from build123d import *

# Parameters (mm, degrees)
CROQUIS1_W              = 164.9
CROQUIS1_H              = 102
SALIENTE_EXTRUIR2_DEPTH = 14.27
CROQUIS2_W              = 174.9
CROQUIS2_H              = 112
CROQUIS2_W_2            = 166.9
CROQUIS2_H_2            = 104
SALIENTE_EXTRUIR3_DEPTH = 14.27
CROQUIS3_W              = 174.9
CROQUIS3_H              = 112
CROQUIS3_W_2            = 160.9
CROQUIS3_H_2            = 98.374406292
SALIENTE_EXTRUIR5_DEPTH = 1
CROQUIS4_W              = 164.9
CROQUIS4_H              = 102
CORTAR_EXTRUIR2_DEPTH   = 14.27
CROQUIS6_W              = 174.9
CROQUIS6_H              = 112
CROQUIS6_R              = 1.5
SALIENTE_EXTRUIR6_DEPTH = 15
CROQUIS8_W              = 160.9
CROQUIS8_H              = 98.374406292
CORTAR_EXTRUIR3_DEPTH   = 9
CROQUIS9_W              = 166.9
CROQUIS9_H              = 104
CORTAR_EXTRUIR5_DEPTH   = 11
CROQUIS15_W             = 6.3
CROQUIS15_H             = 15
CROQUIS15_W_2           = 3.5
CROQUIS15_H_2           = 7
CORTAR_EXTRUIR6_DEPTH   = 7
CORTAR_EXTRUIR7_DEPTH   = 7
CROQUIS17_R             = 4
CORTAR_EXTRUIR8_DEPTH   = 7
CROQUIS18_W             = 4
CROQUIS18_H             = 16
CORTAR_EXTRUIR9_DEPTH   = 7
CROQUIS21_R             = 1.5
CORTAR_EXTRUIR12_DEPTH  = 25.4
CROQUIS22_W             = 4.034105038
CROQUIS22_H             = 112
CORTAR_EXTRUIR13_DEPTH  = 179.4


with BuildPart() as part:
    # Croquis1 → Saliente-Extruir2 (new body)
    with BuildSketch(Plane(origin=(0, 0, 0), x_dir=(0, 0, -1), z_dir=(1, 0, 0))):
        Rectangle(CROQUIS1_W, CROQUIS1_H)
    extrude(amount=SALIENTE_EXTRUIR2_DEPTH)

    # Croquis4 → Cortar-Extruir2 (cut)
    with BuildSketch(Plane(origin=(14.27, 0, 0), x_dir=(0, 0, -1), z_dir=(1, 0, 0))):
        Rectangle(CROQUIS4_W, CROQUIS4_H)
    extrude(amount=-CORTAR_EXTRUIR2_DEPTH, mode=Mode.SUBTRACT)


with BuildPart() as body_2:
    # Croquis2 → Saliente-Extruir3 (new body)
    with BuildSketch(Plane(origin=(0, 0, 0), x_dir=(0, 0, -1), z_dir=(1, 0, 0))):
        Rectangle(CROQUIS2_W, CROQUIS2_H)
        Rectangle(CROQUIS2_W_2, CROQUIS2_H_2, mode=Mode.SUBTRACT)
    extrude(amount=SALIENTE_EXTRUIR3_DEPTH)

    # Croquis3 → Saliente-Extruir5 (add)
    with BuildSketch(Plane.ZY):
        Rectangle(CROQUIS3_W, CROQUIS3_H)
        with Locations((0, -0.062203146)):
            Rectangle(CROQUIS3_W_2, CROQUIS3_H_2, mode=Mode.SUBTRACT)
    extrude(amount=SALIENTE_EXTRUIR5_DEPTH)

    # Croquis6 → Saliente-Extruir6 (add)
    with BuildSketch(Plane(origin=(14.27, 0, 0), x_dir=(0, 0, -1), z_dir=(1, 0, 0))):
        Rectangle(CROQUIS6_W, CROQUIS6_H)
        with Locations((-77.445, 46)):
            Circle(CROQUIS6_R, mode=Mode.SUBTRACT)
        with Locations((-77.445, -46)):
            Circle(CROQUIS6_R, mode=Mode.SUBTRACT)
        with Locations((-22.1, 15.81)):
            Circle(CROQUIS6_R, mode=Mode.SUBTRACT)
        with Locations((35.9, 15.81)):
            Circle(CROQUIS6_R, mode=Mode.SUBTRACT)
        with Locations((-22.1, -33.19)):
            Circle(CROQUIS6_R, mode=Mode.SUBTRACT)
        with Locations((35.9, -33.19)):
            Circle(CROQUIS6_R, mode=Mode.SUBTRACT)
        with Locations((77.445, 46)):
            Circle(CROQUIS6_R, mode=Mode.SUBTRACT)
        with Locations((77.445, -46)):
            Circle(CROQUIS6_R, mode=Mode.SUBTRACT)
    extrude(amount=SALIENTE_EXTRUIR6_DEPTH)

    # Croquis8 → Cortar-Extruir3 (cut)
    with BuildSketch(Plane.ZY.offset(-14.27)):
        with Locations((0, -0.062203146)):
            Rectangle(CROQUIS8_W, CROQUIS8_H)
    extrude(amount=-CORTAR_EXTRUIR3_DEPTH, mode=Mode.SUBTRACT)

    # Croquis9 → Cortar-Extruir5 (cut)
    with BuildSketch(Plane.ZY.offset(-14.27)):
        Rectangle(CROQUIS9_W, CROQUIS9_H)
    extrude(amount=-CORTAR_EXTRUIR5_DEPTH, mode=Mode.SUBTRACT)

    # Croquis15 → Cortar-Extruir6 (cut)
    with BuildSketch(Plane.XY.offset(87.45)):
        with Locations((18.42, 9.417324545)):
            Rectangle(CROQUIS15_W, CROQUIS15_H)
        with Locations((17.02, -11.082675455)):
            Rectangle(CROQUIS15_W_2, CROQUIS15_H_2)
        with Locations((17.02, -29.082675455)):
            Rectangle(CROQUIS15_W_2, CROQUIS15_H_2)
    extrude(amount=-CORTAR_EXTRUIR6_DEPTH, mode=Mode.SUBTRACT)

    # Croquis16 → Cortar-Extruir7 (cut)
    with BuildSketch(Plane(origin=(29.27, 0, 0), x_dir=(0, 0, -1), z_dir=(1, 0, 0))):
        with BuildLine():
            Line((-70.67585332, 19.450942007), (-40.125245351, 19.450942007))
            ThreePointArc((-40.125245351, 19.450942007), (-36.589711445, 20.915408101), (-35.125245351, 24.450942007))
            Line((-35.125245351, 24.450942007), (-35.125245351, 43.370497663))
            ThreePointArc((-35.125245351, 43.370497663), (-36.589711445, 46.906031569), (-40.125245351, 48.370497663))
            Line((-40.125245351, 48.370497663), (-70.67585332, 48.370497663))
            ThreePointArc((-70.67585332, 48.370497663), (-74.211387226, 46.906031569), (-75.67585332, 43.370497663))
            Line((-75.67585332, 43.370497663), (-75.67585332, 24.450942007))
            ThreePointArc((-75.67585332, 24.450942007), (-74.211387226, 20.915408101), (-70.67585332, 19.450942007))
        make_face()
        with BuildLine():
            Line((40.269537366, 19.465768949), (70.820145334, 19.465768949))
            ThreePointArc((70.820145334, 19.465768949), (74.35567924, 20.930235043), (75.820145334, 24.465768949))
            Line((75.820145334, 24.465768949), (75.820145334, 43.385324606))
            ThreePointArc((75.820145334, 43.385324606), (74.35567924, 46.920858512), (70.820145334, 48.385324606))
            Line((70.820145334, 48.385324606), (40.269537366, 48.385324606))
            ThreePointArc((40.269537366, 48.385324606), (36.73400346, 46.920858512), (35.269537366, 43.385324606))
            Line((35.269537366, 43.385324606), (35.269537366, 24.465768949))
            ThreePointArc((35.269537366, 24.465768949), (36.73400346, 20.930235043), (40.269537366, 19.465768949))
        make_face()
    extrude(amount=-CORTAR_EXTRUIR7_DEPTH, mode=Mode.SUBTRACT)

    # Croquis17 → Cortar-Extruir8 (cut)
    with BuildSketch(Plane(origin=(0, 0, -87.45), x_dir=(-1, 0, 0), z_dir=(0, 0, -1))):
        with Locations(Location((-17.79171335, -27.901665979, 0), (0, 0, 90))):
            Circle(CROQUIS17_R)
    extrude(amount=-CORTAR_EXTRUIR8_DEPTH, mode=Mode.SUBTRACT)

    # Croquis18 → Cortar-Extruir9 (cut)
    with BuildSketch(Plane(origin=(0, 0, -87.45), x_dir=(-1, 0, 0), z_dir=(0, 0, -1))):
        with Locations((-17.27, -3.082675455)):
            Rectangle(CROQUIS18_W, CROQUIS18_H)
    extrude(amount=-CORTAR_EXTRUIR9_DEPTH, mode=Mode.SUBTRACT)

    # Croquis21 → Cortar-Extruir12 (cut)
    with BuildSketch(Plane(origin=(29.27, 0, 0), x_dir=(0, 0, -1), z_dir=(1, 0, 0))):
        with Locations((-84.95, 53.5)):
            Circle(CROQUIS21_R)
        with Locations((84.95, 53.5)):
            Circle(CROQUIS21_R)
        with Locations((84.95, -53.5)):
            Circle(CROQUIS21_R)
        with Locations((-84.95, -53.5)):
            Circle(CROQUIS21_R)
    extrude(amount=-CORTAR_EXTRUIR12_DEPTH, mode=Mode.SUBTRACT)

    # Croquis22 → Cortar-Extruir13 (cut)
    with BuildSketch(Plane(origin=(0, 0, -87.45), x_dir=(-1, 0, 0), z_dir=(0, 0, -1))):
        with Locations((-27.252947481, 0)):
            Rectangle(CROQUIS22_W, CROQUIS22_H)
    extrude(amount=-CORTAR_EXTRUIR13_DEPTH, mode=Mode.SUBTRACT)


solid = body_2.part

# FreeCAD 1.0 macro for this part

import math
import FreeCAD as App
import Part
import Sketcher


def add_polygon(sketch, points):
    """Adds a closed chain of lines whose ends are joined by coincident constraints."""
    first, n = sketch.GeometryCount, len(points)
    for a, b in zip(points, points[1:] + points[:1]):
        sketch.addGeometry(Part.LineSegment(App.Vector(*a, 0), App.Vector(*b, 0)), False)
    for i in range(n):
        sketch.addConstraint(Sketcher.Constraint("Coincident", first + i, 2, first + (i + 1) % n, 1))

doc = App.newDocument("Part")
body = doc.addObject("PartDesign::Body", "Body")

# Sketch on YZ plane
sketch1 = body.newObject("Sketcher::SketchObject", "Sketch")
sketch1.AttachmentSupport = (doc.getObject("YZ_Plane"), [""])
sketch1.MapMode = "FlatFace"
add_polygon(sketch1, [(51, 82), (-51, 82), (-51, -82), (51, -82)])  # lines 0-3
sketch1.addConstraint([
    Sketcher.Constraint("Horizontal", 0),
    Sketcher.Constraint("Vertical", 1),
    Sketcher.Constraint("Horizontal", 2),
    Sketcher.Constraint("Vertical", 3),
    Sketcher.Constraint("Symmetric", 0, 2, 2, 2, -1, 1),
    Sketcher.Constraint("DistanceX", 0, 2, 0, 1, 102.0),
    Sketcher.Constraint("DistanceY", 1, 2, 1, 1, 164.9),
])
pad1 = body.newObject("PartDesign::Pad", "Pad")
pad1.Profile = sketch1
pad1.Length = 14.27

# Sketch on YZ plane
sketch2 = body.newObject("Sketcher::SketchObject", "Sketch001")
sketch2.AttachmentSupport = (doc.getObject("YZ_Plane"), [""])
sketch2.MapMode = "FlatFace"
sketch2.AttachmentOffset = App.Placement(App.Vector(0, 0, 14.27), App.Rotation())
add_polygon(sketch2, [(51, 82), (-51, 82), (-51, -82), (51, -82)])  # lines 0-3
sketch2.addConstraint([
    Sketcher.Constraint("Horizontal", 0),
    Sketcher.Constraint("Vertical", 1),
    Sketcher.Constraint("Horizontal", 2),
    Sketcher.Constraint("Vertical", 3),
    Sketcher.Constraint("Symmetric", 0, 2, 2, 2, -1, 1),
    Sketcher.Constraint("DistanceX", 0, 2, 0, 1, 102.0),
    Sketcher.Constraint("DistanceY", 1, 2, 1, 1, 164.9),
])
pocket1 = body.newObject("PartDesign::Pocket", "Pocket")
pocket1.Profile = sketch2
pocket1.Length = 14.27
body2 = doc.addObject("PartDesign::Body", "Body001")

# Sketch on YZ plane
sketch3 = body2.newObject("Sketcher::SketchObject", "Sketch002")
sketch3.AttachmentSupport = (doc.getObject("YZ_Plane001"), [""])
sketch3.MapMode = "FlatFace"
add_polygon(sketch3, [(56, 87), (-56, 87), (-56, -87), (56, -87)])  # lines 0-3
add_polygon(sketch3, [(-52, -83), (-52, 83), (52, 83), (52, -83)])  # lines 4-7
sketch3.addConstraint([
    Sketcher.Constraint("Horizontal", 0),
    Sketcher.Constraint("Vertical", 1),
    Sketcher.Constraint("Horizontal", 2),
    Sketcher.Constraint("Vertical", 3),
    Sketcher.Constraint("Vertical", 4),
    Sketcher.Constraint("Horizontal", 5),
    Sketcher.Constraint("Vertical", 6),
    Sketcher.Constraint("Horizontal", 7),
    Sketcher.Constraint("Symmetric", 0, 2, 2, 2, -1, 1),
    Sketcher.Constraint("Symmetric", 4, 2, 6, 2, -1, 1),
    Sketcher.Constraint("DistanceX", 0, 2, 0, 1, 112.0),
    Sketcher.Constraint("DistanceX", 5, 1, 5, 2, 104.0),
    Sketcher.Constraint("DistanceY", 1, 2, 1, 1, 174.9),
    Sketcher.Constraint("DistanceY", 4, 1, 4, 2, 166.9),
])
pad2 = body2.newObject("PartDesign::Pad", "Pad001")
pad2.Profile = sketch3
pad2.Length = 14.27

# Sketch on YZ plane
sketch4 = body2.newObject("Sketcher::SketchObject", "Sketch003")
sketch4.AttachmentSupport = (doc.getObject("YZ_Plane001"), [""])
sketch4.MapMode = "FlatFace"
add_polygon(sketch4, [(56, -87), (-56, -87), (-56, 87), (56, 87)])  # lines 0-3
add_polygon(sketch4, [(-49, 80), (-49, -80), (49, -80), (49, 80)])  # lines 4-7
sketch4.addConstraint([
    Sketcher.Constraint("Horizontal", 0),
    Sketcher.Constraint("Vertical", 1),
    Sketcher.Constraint("Horizontal", 2),
    Sketcher.Constraint("Vertical", 3),
    Sketcher.Constraint("Vertical", 4),
    Sketcher.Constraint("Horizontal", 5),
    Sketcher.Constraint("Vertical", 6),
    Sketcher.Constraint("Horizontal", 7),
    Sketcher.Constraint("Symmetric", 0, 2, 2, 2, -1, 1),
    Sketcher.Constraint("DistanceX", 0, 2, 0, 1, 112.0),
    Sketcher.Constraint("DistanceY", 1, 1, 1, 2, 174.9),
    Sketcher.Constraint("DistanceY", 4, 2, 4, 1, 160.9),
    Sketcher.Constraint("DistanceY", 0, 2, 4, 2, 7.0),
    Sketcher.Constraint("DistanceX", -1, 1, 5, 2, 49.125),
    Sketcher.Constraint("DistanceX", 5, 1, 5, 2, 98.374406),
])
pad3 = body2.newObject("PartDesign::Pad", "Pad002")
pad3.Profile = sketch4
pad3.Length = 1
pad3.Reversed = True

# Sketch on YZ plane
sketch5 = body2.newObject("Sketcher::SketchObject", "Sketch004")
sketch5.AttachmentSupport = (doc.getObject("YZ_Plane001"), [""])
sketch5.MapMode = "FlatFace"
sketch5.AttachmentOffset = App.Placement(App.Vector(0, 0, 14.27), App.Rotation())
add_polygon(sketch5, [(56, 87.5), (-56, 87.5), (-56, -87.5), (56, -87.5)])  # lines 0-3
sketch5.addGeometry(Part.Circle(App.Vector(-46, 77.4, 0), App.Vector(0, 0, 1), 1.5), False)  # 4
sketch5.addGeometry(Part.Circle(App.Vector(-33.2, 22.1, 0), App.Vector(0, 0, 1), 1.5), False)  # 5
sketch5.addGeometry(Part.Circle(App.Vector(-33.2, -35.9, 0), App.Vector(0, 0, 1), 1.5), False)  # 6
sketch5.addGeometry(Part.Circle(App.Vector(-46, -77.4, 0), App.Vector(0, 0, 1), 1.5), False)  # 7
sketch5.addGeometry(Part.Circle(App.Vector(15.8, 22.1, 0), App.Vector(0, 0, 1), 1.5), False)  # 8
sketch5.addGeometry(Part.Circle(App.Vector(46, 77.4, 0), App.Vector(0, 0, 1), 1.5), False)  # 9
sketch5.addGeometry(Part.Circle(App.Vector(15.8, -35.9, 0), App.Vector(0, 0, 1), 1.5), False)  # 10
sketch5.addGeometry(Part.Circle(App.Vector(46, -77.4, 0), App.Vector(0, 0, 1), 1.5), False)  # 11
sketch5.addConstraint([
    Sketcher.Constraint("Horizontal", 0),
    Sketcher.Constraint("Vertical", 1),
    Sketcher.Constraint("Horizontal", 2),
    Sketcher.Constraint("Vertical", 3),
    Sketcher.Constraint("Equal", 4, 5),
    Sketcher.Constraint("Equal", 5, 6),
    Sketcher.Constraint("Equal", 6, 7),
    Sketcher.Constraint("Equal", 7, 8),
    Sketcher.Constraint("Equal", 8, 9),
    Sketcher.Constraint("Equal", 9, 10),
    Sketcher.Constraint("Equal", 10, 11),
    Sketcher.Constraint("Symmetric", 7, 3, 9, 3, -1, 1),
    Sketcher.Constraint("Symmetric", 4, 3, 11, 3, -1, 1),
    Sketcher.Constraint("Symmetric", 0, 2, 2, 2, -1, 1),
    Sketcher.Constraint("Symmetric", 4, 3, 9, 3, -2),
    Sketcher.Constraint("Horizontal", 5, 3, 8, 3),
    Sketcher.Constraint("Horizontal", 6, 3, 10, 3),
    Sketcher.Constraint("Vertical", 5, 3, 6, 3),
    Sketcher.Constraint("Vertical", 8, 3, 10, 3),
    Sketcher.Constraint("Diameter", 4, 3.0),
    Sketcher.Constraint("DistanceX", 0, 2, 0, 1, 112.0),
    Sketcher.Constraint("DistanceY", 1, 2, 1, 1, 174.9),
    Sketcher.Constraint("DistanceX", 4, 3, -1, 1, 46.0),
    Sketcher.Constraint("DistanceY", 6, 3, 5, 3, 58.0),
    Sketcher.Constraint("DistanceX", 5, 3, 8, 3, 49.0),
    Sketcher.Constraint("DistanceY", -1, 1, 5, 3, 22.1),
    Sketcher.Constraint("DistanceX", 5, 3, -1, 1, 33.19),
    Sketcher.Constraint("DistanceY", 7, 3, 4, 3, 154.89),
])
pad4 = body2.newObject("PartDesign::Pad", "Pad003")
pad4.Profile = sketch5
pad4.Length = 15

# Sketch on YZ plane
sketch6 = body2.newObject("Sketcher::SketchObject", "Sketch005")
sketch6.AttachmentSupport = (doc.getObject("YZ_Plane001"), [""])
sketch6.MapMode = "FlatFace"
sketch6.AttachmentOffset = App.Placement(App.Vector(0, 0, 14.27), App.Rotation())
add_polygon(sketch6, [(49, -80), (-49, -80), (-49, 80), (49, 80)])  # lines 0-3
sketch6.addConstraint([
    Sketcher.Constraint("Horizontal", 0),
    Sketcher.Constraint("Vertical", 1),
    Sketcher.Constraint("Horizontal", 2),
    Sketcher.Constraint("Vertical", 3),
    Sketcher.Constraint("DistanceY", 1, 1, 1, 2, 160.9),
    Sketcher.Constraint("DistanceY", 0, 2, -1, 1, 80.45),
    Sketcher.Constraint("DistanceX", -1, 1, 2, 2, 49.125),
    Sketcher.Constraint("DistanceX", 0, 2, 0, 1, 98.374406),
])
pocket2 = body2.newObject("PartDesign::Pocket", "Pocket001")
pocket2.Profile = sketch6
pocket2.Length = 9
pocket2.Reversed = True

# Sketch on YZ plane
sketch7 = body2.newObject("Sketcher::SketchObject", "Sketch006")
sketch7.AttachmentSupport = (doc.getObject("YZ_Plane001"), [""])
sketch7.MapMode = "FlatFace"
sketch7.AttachmentOffset = App.Placement(App.Vector(0, 0, 14.27), App.Rotation())
add_polygon(sketch7, [(52, -83), (-52, -83), (-52, 83), (52, 83)])  # lines 0-3
sketch7.addConstraint([
    Sketcher.Constraint("Horizontal", 0),
    Sketcher.Constraint("Vertical", 1),
    Sketcher.Constraint("Horizontal", 2),
    Sketcher.Constraint("Vertical", 3),
    Sketcher.Constraint("Symmetric", 0, 2, 2, 2, -1, 1),
    Sketcher.Constraint("DistanceX", 0, 2, 0, 1, 104.0),
    Sketcher.Constraint("DistanceY", 1, 1, 1, 2, 166.9),
])
pocket3 = body2.newObject("PartDesign::Pocket", "Pocket002")
pocket3.Profile = sketch7
pocket3.Length = 11
pocket3.Reversed = True

# Sketch on XY plane
sketch8 = body2.newObject("Sketcher::SketchObject", "Sketch007")
sketch8.AttachmentSupport = (doc.getObject("XY_Plane001"), [""])
sketch8.MapMode = "FlatFace"
sketch8.AttachmentOffset = App.Placement(App.Vector(0, 0, 87.45), App.Rotation())
add_polygon(sketch8, [(15.3, 16.9), (15.3, 1.9), (21.6, 1.9), (21.6, 16.9)])  # lines 0-3
add_polygon(sketch8, [(15.3, -7.6), (15.3, -14.6), (18.8, -14.6), (18.8, -7.6)])  # lines 4-7
add_polygon(sketch8, [(15.3, -25.6), (15.3, -32.6), (18.8, -32.6), (18.8, -25.6)])  # lines 8-11
sketch8.addConstraint([
    Sketcher.Constraint("Vertical", 0),
    Sketcher.Constraint("Horizontal", 1),
    Sketcher.Constraint("Vertical", 2),
    Sketcher.Constraint("Horizontal", 3),
    Sketcher.Constraint("Vertical", 4),
    Sketcher.Constraint("Horizontal", 5),
    Sketcher.Constraint("Vertical", 6),
    Sketcher.Constraint("Horizontal", 7),
    Sketcher.Constraint("Vertical", 8),
    Sketcher.Constraint("Horizontal", 9),
    Sketcher.Constraint("Vertical", 10),
    Sketcher.Constraint("Horizontal", 11),
    Sketcher.Constraint("Vertical", 3, 2, 4, 2),
    Sketcher.Constraint("Vertical", 7, 2, 8, 2),
    Sketcher.Constraint("Vertical", 6, 2, 9, 2),
    Sketcher.Constraint("Equal", 6, 8),
    Sketcher.Constraint("DistanceY", 0, 2, 0, 1, 15.0),
    Sketcher.Constraint("DistanceY", 4, 2, 4, 1, 7.0),
    Sketcher.Constraint("DistanceX", 1, 1, 1, 2, 6.3),
    Sketcher.Constraint("DistanceX", 5, 1, 5, 2, 3.5),
    Sketcher.Constraint("DistanceY", 8, 2, 4, 2, 18.0),
    Sketcher.Constraint("DistanceY", 4, 2, 0, 2, 16.5),
    Sketcher.Constraint("DistanceX", -1, 1, 0, 2, 15.27),
    Sketcher.Constraint("DistanceY", -1, 1, 0, 2, 1.917325),
])
pocket4 = body2.newObject("PartDesign::Pocket", "Pocket003")
pocket4.Profile = sketch8
pocket4.Length = 7

# Sketch on YZ plane
sketch9 = body2.newObject("Sketcher::SketchObject", "Sketch008")
sketch9.AttachmentSupport = (doc.getObject("YZ_Plane001"), [""])
sketch9.MapMode = "FlatFace"
sketch9.AttachmentOffset = App.Placement(App.Vector(0, 0, 29.27), App.Rotation())
sketch9.addGeometry([
    Part.LineSegment(App.Vector(19, 71, 0), App.Vector(19, 40, 0)),  # 0
    Part.ArcOfCircle(Part.Circle(App.Vector(24, 40, 0), App.Vector(0, 0, 1), 5), math.radians(180), math.radians(270)),  # 1
    Part.LineSegment(App.Vector(24, 35, 0), App.Vector(43, 35, 0)),  # 2
    Part.ArcOfCircle(Part.Circle(App.Vector(43, 40, 0), App.Vector(0, 0, 1), 5), math.radians(-90), math.radians(0)),  # 3
    Part.LineSegment(App.Vector(48, 40, 0), App.Vector(48, 71, 0)),  # 4
    Part.ArcOfCircle(Part.Circle(App.Vector(43, 71, 0), App.Vector(0, 0, 1), 5), math.radians(0), math.radians(90)),  # 5
    Part.LineSegment(App.Vector(43, 76, 0), App.Vector(24, 76, 0)),  # 6
    Part.ArcOfCircle(Part.Circle(App.Vector(24, 71, 0), App.Vector(0, 0, 1), 5), math.radians(90), math.radians(180)),  # 7
    Part.LineSegment(App.Vector(19, -40, 0), App.Vector(19, -71, 0)),  # 8
    Part.ArcOfCircle(Part.Circle(App.Vector(24, -71, 0), App.Vector(0, 0, 1), 5), math.radians(180), math.radians(270)),  # 9
    Part.LineSegment(App.Vector(24, -76, 0), App.Vector(43, -76, 0)),  # 10
    Part.ArcOfCircle(Part.Circle(App.Vector(43, -71, 0), App.Vector(0, 0, 1), 5), math.radians(-90), math.radians(0)),  # 11
    Part.LineSegment(App.Vector(48, -71, 0), App.Vector(48, -40, 0)),  # 12
    Part.ArcOfCircle(Part.Circle(App.Vector(43, -40, 0), App.Vector(0, 0, 1), 5), math.radians(0), math.radians(90)),  # 13
    Part.LineSegment(App.Vector(43, -35, 0), App.Vector(24, -35, 0)),  # 14
    Part.ArcOfCircle(Part.Circle(App.Vector(24, -40, 0), App.Vector(0, 0, 1), 5), math.radians(90), math.radians(180)),  # 15
], False)
sketch9.addConstraint([
    Sketcher.Constraint("Tangent", 0, 2, 1, 1),
    Sketcher.Constraint("Tangent", 1, 2, 2, 1),
    Sketcher.Constraint("Tangent", 2, 2, 3, 1),
    Sketcher.Constraint("Tangent", 3, 2, 4, 1),
    Sketcher.Constraint("Tangent", 4, 2, 5, 1),
    Sketcher.Constraint("Tangent", 5, 2, 6, 1),
    Sketcher.Constraint("Tangent", 6, 2, 7, 1),
    Sketcher.Constraint("Tangent", 7, 2, 0, 1),
    Sketcher.Constraint("Tangent", 8, 2, 9, 1),
    Sketcher.Constraint("Tangent", 9, 2, 10, 1),
    Sketcher.Constraint("Tangent", 10, 2, 11, 1),
    Sketcher.Constraint("Tangent", 11, 2, 12, 1),
    Sketcher.Constraint("Tangent", 12, 2, 13, 1),
    Sketcher.Constraint("Tangent", 13, 2, 14, 1),
    Sketcher.Constraint("Tangent", 14, 2, 15, 1),
    Sketcher.Constraint("Tangent", 15, 2, 8, 1),
    Sketcher.Constraint("Vertical", 0),
    Sketcher.Constraint("Horizontal", 2),
    Sketcher.Constraint("Vertical", 4),
    Sketcher.Constraint("Horizontal", 6),
    Sketcher.Constraint("Vertical", 8),
    Sketcher.Constraint("Horizontal", 10),
    Sketcher.Constraint("Vertical", 12),
    Sketcher.Constraint("Horizontal", 14),
    Sketcher.Constraint("Equal", 1, 3),
    Sketcher.Constraint("Equal", 3, 5),
    Sketcher.Constraint("Equal", 5, 7),
    Sketcher.Constraint("Equal", 7, 9),
    Sketcher.Constraint("Equal", 9, 11),
    Sketcher.Constraint("Equal", 11, 13),
    Sketcher.Constraint("Equal", 13, 15),
    Sketcher.Constraint("Equal", 6, 10),
    Sketcher.Constraint("Equal", 4, 8),
    Sketcher.Constraint("Radius", 1, 5.0),
    Sketcher.Constraint("DistanceY", 9, 3, 7, 3, 141.495999),
    Sketcher.Constraint("DistanceX", 2, 1, 2, 2, 18.919556),
    Sketcher.Constraint("DistanceY", 0, 2, 0, 1, 30.550608),
    Sketcher.Constraint("DistanceX", -1, 1, 9, 3, 24.465769),
    Sketcher.Constraint("DistanceX", 9, 3, 3, 3, 18.904729),
    Sketcher.Constraint("DistanceY", -1, 1, 1, 3, 40.125245),
])
pocket5 = body2.newObject("PartDesign::Pocket", "Pocket004")
pocket5.Profile = sketch9
pocket5.Length = 7

# Sketch on XY plane
sketch10 = body2.newObject("Sketcher::SketchObject", "Sketch009")
sketch10.AttachmentSupport = (doc.getObject("XY_Plane001"), [""])
sketch10.MapMode = "FlatFace"
sketch10.AttachmentOffset = App.Placement(App.Vector(0, 0, -87.45), App.Rotation())
sketch10.addGeometry(Part.Circle(App.Vector(17.8, -27.9, 0), App.Vector(0, 0, 1), 4), False)
sketch10.addConstraint([
    Sketcher.Constraint("Diameter", 0, 8.0),
    Sketcher.Constraint("DistanceX", -1, 1, 0, 3, 17.791713),
    Sketcher.Constraint("DistanceY", 0, 3, -1, 1, 27.901666),
])
pocket6 = body2.newObject("PartDesign::Pocket", "Pocket005")
pocket6.Profile = sketch10
pocket6.Length = 7
pocket6.Reversed = True

# Sketch on XY plane
sketch11 = body2.newObject("Sketcher::SketchObject", "Sketch010")
sketch11.AttachmentSupport = (doc.getObject("XY_Plane001"), [""])
sketch11.MapMode = "FlatFace"
sketch11.AttachmentOffset = App.Placement(App.Vector(0, 0, -87.45), App.Rotation())
add_polygon(sketch11, [(19.3, 4.9), (19.3, -11.1), (15.3, -11.1), (15.3, 4.9)])  # lines 0-3
sketch11.addConstraint([
    Sketcher.Constraint("Vertical", 0),
    Sketcher.Constraint("Horizontal", 1),
    Sketcher.Constraint("Vertical", 2),
    Sketcher.Constraint("Horizontal", 3),
    Sketcher.Constraint("DistanceX", 1, 2, 1, 1, 4.0),
    Sketcher.Constraint("DistanceY", 0, 2, 0, 1, 16.0),
    Sketcher.Constraint("DistanceX", -1, 1, 0, 2, 19.27),
    Sketcher.Constraint("DistanceY", 0, 2, -1, 1, 11.082675),
])
pocket7 = body2.newObject("PartDesign::Pocket", "Pocket006")
pocket7.Profile = sketch11
pocket7.Length = 7
pocket7.Reversed = True

# Sketch on YZ plane
sketch12 = body2.newObject("Sketcher::SketchObject", "Sketch011")
sketch12.AttachmentSupport = (doc.getObject("YZ_Plane001"), [""])
sketch12.MapMode = "FlatFace"
sketch12.AttachmentOffset = App.Placement(App.Vector(0, 0, 29.27), App.Rotation())
sketch12.addGeometry([
    Part.Circle(App.Vector(53.5, 85, 0), App.Vector(0, 0, 1), 1.5),
    Part.Circle(App.Vector(53.5, -85, 0), App.Vector(0, 0, 1), 1.5),
    Part.Circle(App.Vector(-53.5, -85, 0), App.Vector(0, 0, 1), 1.5),
    Part.Circle(App.Vector(-53.5, 85, 0), App.Vector(0, 0, 1), 1.5),
], False)
sketch12.addConstraint([
    Sketcher.Constraint("Equal", 0, 1),
    Sketcher.Constraint("Equal", 1, 2),
    Sketcher.Constraint("Equal", 2, 3),
    Sketcher.Constraint("Symmetric", 0, 3, 2, 3, -1, 1),
    Sketcher.Constraint("Symmetric", 1, 3, 3, 3, -1, 1),
    Sketcher.Constraint("Symmetric", 1, 3, 2, 3, -2),
    Sketcher.Constraint("Diameter", 0, 3.0),
    Sketcher.Constraint("DistanceX", 2, 3, 1, 3, 107.0),
    Sketcher.Constraint("DistanceY", 1, 3, 0, 3, 169.9),
])
pocket8 = body2.newObject("PartDesign::Pocket", "Pocket007")
pocket8.Profile = sketch12
pocket8.Length = 25.4

# Sketch on XY plane
sketch13 = body2.newObject("Sketcher::SketchObject", "Sketch012")
sketch13.AttachmentSupport = (doc.getObject("XY_Plane001"), [""])
sketch13.MapMode = "FlatFace"
sketch13.AttachmentOffset = App.Placement(App.Vector(0, 0, -87.45), App.Rotation())
add_polygon(sketch13, [(29.3, 56), (29.3, -56), (25.2, -56), (25.2, 56)])  # lines 0-3
sketch13.addConstraint([
    Sketcher.Constraint("Vertical", 0),
    Sketcher.Constraint("Horizontal", 1),
    Sketcher.Constraint("Vertical", 2),
    Sketcher.Constraint("Horizontal", 3),
    Sketcher.Constraint("DistanceY", 0, 2, 0, 1, 112.0),
    Sketcher.Constraint("DistanceY", 0, 2, -1, 1, 56.0),
    Sketcher.Constraint("DistanceX", -1, 1, 0, 2, 29.27),
    Sketcher.Constraint("DistanceX", 1, 2, 1, 1, 4.034105),
])
pocket9 = body2.newObject("PartDesign::Pocket", "Pocket008")
pocket9.Profile = sketch13
pocket9.Length = 179.4
pocket9.Reversed = True

doc.recompute()
